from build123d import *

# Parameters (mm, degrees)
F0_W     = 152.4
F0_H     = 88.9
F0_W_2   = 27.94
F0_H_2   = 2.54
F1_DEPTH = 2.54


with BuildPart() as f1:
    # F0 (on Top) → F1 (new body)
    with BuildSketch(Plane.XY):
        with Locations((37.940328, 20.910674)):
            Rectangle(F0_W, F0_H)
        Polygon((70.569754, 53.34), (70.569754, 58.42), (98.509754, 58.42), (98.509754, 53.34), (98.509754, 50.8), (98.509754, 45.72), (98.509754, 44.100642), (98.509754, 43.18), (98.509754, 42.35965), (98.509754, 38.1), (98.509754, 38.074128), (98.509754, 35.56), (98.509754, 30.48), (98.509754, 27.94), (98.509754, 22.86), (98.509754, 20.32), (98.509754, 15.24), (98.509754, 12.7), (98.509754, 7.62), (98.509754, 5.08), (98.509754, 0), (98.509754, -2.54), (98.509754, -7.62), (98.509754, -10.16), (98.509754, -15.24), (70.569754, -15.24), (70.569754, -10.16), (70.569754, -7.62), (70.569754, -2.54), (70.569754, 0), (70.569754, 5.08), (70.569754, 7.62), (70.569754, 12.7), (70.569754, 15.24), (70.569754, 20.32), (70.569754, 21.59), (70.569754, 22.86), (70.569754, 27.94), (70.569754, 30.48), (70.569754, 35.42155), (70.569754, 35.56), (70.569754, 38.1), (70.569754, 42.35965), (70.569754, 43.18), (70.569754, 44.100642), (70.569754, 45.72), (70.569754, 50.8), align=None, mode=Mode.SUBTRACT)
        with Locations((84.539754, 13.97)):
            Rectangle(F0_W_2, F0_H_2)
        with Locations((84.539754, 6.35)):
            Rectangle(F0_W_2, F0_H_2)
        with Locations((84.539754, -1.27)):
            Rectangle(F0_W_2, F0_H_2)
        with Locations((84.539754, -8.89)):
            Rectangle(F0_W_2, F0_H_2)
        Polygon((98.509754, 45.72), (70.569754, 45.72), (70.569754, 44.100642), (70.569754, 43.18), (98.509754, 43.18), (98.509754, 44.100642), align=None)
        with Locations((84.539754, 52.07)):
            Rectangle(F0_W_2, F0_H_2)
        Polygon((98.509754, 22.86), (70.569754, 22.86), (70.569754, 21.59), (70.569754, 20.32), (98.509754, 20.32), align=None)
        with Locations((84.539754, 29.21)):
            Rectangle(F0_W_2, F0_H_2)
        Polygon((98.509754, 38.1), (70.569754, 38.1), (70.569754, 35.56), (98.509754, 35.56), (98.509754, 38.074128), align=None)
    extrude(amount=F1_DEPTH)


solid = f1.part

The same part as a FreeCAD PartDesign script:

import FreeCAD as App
import Part
import Sketcher

V = App.Vector
Q = App.Units.Quantity

doc = App.newDocument("Part")
params = doc.addObject("Spreadsheet::Sheet", "Params")
for row, (alias, value) in enumerate([
    ("sketch1_width", "6 in"),
    ("sketch1_width2", "1.1 in"),
    ("sketch1_height", "3.5 in"),
    ("sketch1_height2", "0.2 in"),
    ("pad1_length", "0.1 in"),
], start=1):
    params.set(f"A{row}", alias)
    params.set(f"B{row}", "=" + value)
    params.setAlias(f"B{row}", alias)

body = doc.addObject("PartDesign::Body", "Body")

# Sketch on XY plane
sketch1 = body.newObject("Sketcher::SketchObject", "Sketch")
sketch1.AttachmentSupport = (doc.getObject("XY_Plane"), [""])
sketch1.MapMode = "FlatFace"
sketch1.addGeometry(Part.LineSegment(V(-38, 65, 0), V(-38, -24, 0)), False)
sketch1.addGeometry(Part.LineSegment(V(-38, -24, 0), V(114, -24, 0)), False)
sketch1.addGeometry(Part.LineSegment(V(114, -24, 0), V(114, 65, 0)), False)
sketch1.addGeometry(Part.LineSegment(V(114, 65, 0), V(-38, 65, 0)), False)
sketch1.addGeometry(Part.LineSegment(V(71, -15, 0), V(71, -10, 0)), False)
sketch1.addGeometry(Part.LineSegment(V(71, -10, 0), V(99, -10, 0)), False)
sketch1.addGeometry(Part.LineSegment(V(99, -10, 0), V(99, -15, 0)), False)
sketch1.addGeometry(Part.LineSegment(V(99, -15, 0), V(71, -15, 0)), False)
sketch1.addGeometry(Part.LineSegment(V(71, -8, 0), V(71, -3, 0)), False)
sketch1.addGeometry(Part.LineSegment(V(71, -3, 0), V(99, -3, 0)), False)
sketch1.addGeometry(Part.LineSegment(V(99, -3, 0), V(99, -8, 0)), False)
sketch1.addGeometry(Part.LineSegment(V(99, -8, 0), V(71, -8, 0)), False)
sketch1.addGeometry(Part.LineSegment(V(71, 0, 0), V(71, 5, 0)), False)
sketch1.addGeometry(Part.LineSegment(V(71, 5, 0), V(99, 5, 0)), False)
sketch1.addGeometry(Part.LineSegment(V(99, 5, 0), V(99, 0, 0)), False)
sketch1.addGeometry(Part.LineSegment(V(99, 0, 0), V(71, 0, 0)), False)
sketch1.addGeometry(Part.LineSegment(V(71, 8, 0), V(71, 13, 0)), False)
sketch1.addGeometry(Part.LineSegment(V(71, 13, 0), V(99, 13, 0)), False)
sketch1.addGeometry(Part.LineSegment(V(99, 13, 0), V(99, 8, 0)), False)
sketch1.addGeometry(Part.LineSegment(V(99, 8, 0), V(71, 8, 0)), False)
sketch1.addGeometry(Part.LineSegment(V(71, 15, 0), V(71, 20, 0)), False)
sketch1.addGeometry(Part.LineSegment(V(71, 20, 0), V(99, 20, 0)), False)
sketch1.addGeometry(Part.LineSegment(V(99, 20, 0), V(99, 15, 0)), False)
sketch1.addGeometry(Part.LineSegment(V(99, 15, 0), V(71, 15, 0)), False)
sketch1.addGeometry(Part.LineSegment(V(71, 23, 0), V(71, 28, 0)), False)
sketch1.addGeometry(Part.LineSegment(V(71, 28, 0), V(99, 28, 0)), False)
sketch1.addGeometry(Part.LineSegment(V(99, 28, 0), V(99, 23, 0)), False)
sketch1.addGeometry(Part.LineSegment(V(99, 23, 0), V(71, 23, 0)), False)
sketch1.addGeometry(Part.LineSegment(V(71, 30, 0), V(71, 36, 0)), False)
sketch1.addGeometry(Part.LineSegment(V(71, 36, 0), V(99, 36, 0)), False)
sketch1.addGeometry(Part.LineSegment(V(99, 36, 0), V(99, 30, 0)), False)
sketch1.addGeometry(Part.LineSegment(V(99, 30, 0), V(71, 30, 0)), False)
sketch1.addGeometry(Part.LineSegment(V(71, 38, 0), V(71, 43, 0)), False)
sketch1.addGeometry(Part.LineSegment(V(71, 43, 0), V(99, 43, 0)), False)
sketch1.addGeometry(Part.LineSegment(V(99, 43, 0), V(99, 38, 0)), False)
sketch1.addGeometry(Part.LineSegment(V(99, 38, 0), V(71, 38, 0)), False)
sketch1.addGeometry(Part.LineSegment(V(71, 46, 0), V(71, 51, 0)), False)
sketch1.addGeometry(Part.LineSegment(V(71, 51, 0), V(99, 51, 0)), False)
sketch1.addGeometry(Part.LineSegment(V(99, 51, 0), V(99, 46, 0)), False)
sketch1.addGeometry(Part.LineSegment(V(99, 46, 0), V(71, 46, 0)), False)
sketch1.addGeometry(Part.LineSegment(V(71, 53, 0), V(71, 58, 0)), False)
sketch1.addGeometry(Part.LineSegment(V(71, 58, 0), V(99, 58, 0)), False)
sketch1.addGeometry(Part.LineSegment(V(99, 58, 0), V(99, 53, 0)), False)
sketch1.addGeometry(Part.LineSegment(V(99, 53, 0), V(71, 53, 0)), False)
sketch1.addConstraint(Sketcher.Constraint("Coincident", 0, 2, 1, 1))
sketch1.addConstraint(Sketcher.Constraint("Coincident", 1, 2, 2, 1))
sketch1.addConstraint(Sketcher.Constraint("Coincident", 2, 2, 3, 1))
sketch1.addConstraint(Sketcher.Constraint("Coincident", 3, 2, 0, 1))
sketch1.addConstraint(Sketcher.Constraint("Coincident", 4, 2, 5, 1))
sketch1.addConstraint(Sketcher.Constraint("Coincident", 5, 2, 6, 1))
sketch1.addConstraint(Sketcher.Constraint("Coincident", 6, 2, 7, 1))
sketch1.addConstraint(Sketcher.Constraint("Coincident", 7, 2, 4, 1))
sketch1.addConstraint(Sketcher.Constraint("Coincident", 8, 2, 9, 1))
sketch1.addConstraint(Sketcher.Constraint("Coincident", 9, 2, 10, 1))
sketch1.addConstraint(Sketcher.Constraint("Coincident", 10, 2, 11, 1))
sketch1.addConstraint(Sketcher.Constraint("Coincident", 11, 2, 8, 1))
sketch1.addConstraint(Sketcher.Constraint("Coincident", 12, 2, 13, 1))
sketch1.addConstraint(Sketcher.Constraint("Coincident", 13, 2, 14, 1))
sketch1.addConstraint(Sketcher.Constraint("Coincident", 14, 2, 15, 1))
sketch1.addConstraint(Sketcher.Constraint("Coincident", 15, 2, 12, 1))
sketch1.addConstraint(Sketcher.Constraint("Coincident", 16, 2, 17, 1))
sketch1.addConstraint(Sketcher.Constraint("Coincident", 17, 2, 18, 1))
sketch1.addConstraint(Sketcher.Constraint("Coincident", 18, 2, 19, 1))
sketch1.addConstraint(Sketcher.Constraint("Coincident", 19, 2, 16, 1))
sketch1.addConstraint(Sketcher.Constraint("Coincident", 20, 2, 21, 1))
sketch1.addConstraint(Sketcher.Constraint("Coincident", 21, 2, 22, 1))
sketch1.addConstraint(Sketcher.Constraint("Coincident", 22, 2, 23, 1))
sketch1.addConstraint(Sketcher.Constraint("Coincident", 23, 2, 20, 1))
sketch1.addConstraint(Sketcher.Constraint("Coincident", 24, 2, 25, 1))
sketch1.addConstraint(Sketcher.Constraint("Coincident", 25, 2, 26, 1))
sketch1.addConstraint(Sketcher.Constraint("Coincident", 26, 2, 27, 1))
sketch1.addConstraint(Sketcher.Constraint("Coincident", 27, 2, 24, 1))
sketch1.addConstraint(Sketcher.Constraint("Coincident", 28, 2, 29, 1))
sketch1.addConstraint(Sketcher.Constraint("Coincident", 29, 2, 30, 1))
sketch1.addConstraint(Sketcher.Constraint("Coincident", 30, 2, 31, 1))
sketch1.addConstraint(Sketcher.Constraint("Coincident", 31, 2, 28, 1))
sketch1.addConstraint(Sketcher.Constraint("Coincident", 32, 2, 33, 1))
sketch1.addConstraint(Sketcher.Constraint("Coincident", 33, 2, 34, 1))
sketch1.addConstraint(Sketcher.Constraint("Coincident", 34, 2, 35, 1))
sketch1.addConstraint(Sketcher.Constraint("Coincident", 35, 2, 32, 1))
sketch1.addConstraint(Sketcher.Constraint("Coincident", 36, 2, 37, 1))
sketch1.addConstraint(Sketcher.Constraint("Coincident", 37, 2, 38, 1))
sketch1.addConstraint(Sketcher.Constraint("Coincident", 38, 2, 39, 1))
sketch1.addConstraint(Sketcher.Constraint("Coincident", 39, 2, 36, 1))
sketch1.addConstraint(Sketcher.Constraint("Coincident", 40, 2, 41, 1))
sketch1.addConstraint(Sketcher.Constraint("Coincident", 41, 2, 42, 1))
sketch1.addConstraint(Sketcher.Constraint("Coincident", 42, 2, 43, 1))
sketch1.addConstraint(Sketcher.Constraint("Coincident", 43, 2, 40, 1))
sketch1.addConstraint(Sketcher.Constraint("Vertical", 0))
sketch1.addConstraint(Sketcher.Constraint("Horizontal", 1))
sketch1.addConstraint(Sketcher.Constraint("Vertical", 2))
sketch1.addConstraint(Sketcher.Constraint("Horizontal", 3))
sketch1.addConstraint(Sketcher.Constraint("Vertical", 4))
sketch1.addConstraint(Sketcher.Constraint("Horizontal", 5))
sketch1.addConstraint(Sketcher.Constraint("Vertical", 6))
sketch1.addConstraint(Sketcher.Constraint("Horizontal", 7))
sketch1.addConstraint(Sketcher.Constraint("Vertical", 8))
sketch1.addConstraint(Sketcher.Constraint("Horizontal", 9))
sketch1.addConstraint(Sketcher.Constraint("Vertical", 10))
sketch1.addConstraint(Sketcher.Constraint("Horizontal", 11))
sketch1.addConstraint(Sketcher.Constraint("Vertical", 12))
sketch1.addConstraint(Sketcher.Constraint("Horizontal", 13))
sketch1.addConstraint(Sketcher.Constraint("Vertical", 14))
sketch1.addConstraint(Sketcher.Constraint("Horizontal", 15))
sketch1.addConstraint(Sketcher.Constraint("Vertical", 16))
sketch1.addConstraint(Sketcher.Constraint("Horizontal", 17))
sketch1.addConstraint(Sketcher.Constraint("Vertical", 18))
sketch1.addConstraint(Sketcher.Constraint("Horizontal", 19))
sketch1.addConstraint(Sketcher.Constraint("Vertical", 20))
sketch1.addConstraint(Sketcher.Constraint("Horizontal", 21))
sketch1.addConstraint(Sketcher.Constraint("Vertical", 22))
sketch1.addConstraint(Sketcher.Constraint("Horizontal", 23))
sketch1.addConstraint(Sketcher.Constraint("Vertical", 24))
sketch1.addConstraint(Sketcher.Constraint("Horizontal", 25))
sketch1.addConstraint(Sketcher.Constraint("Vertical", 26))
sketch1.addConstraint(Sketcher.Constraint("Horizontal", 27))
sketch1.addConstraint(Sketcher.Constraint("Vertical", 28))
sketch1.addConstraint(Sketcher.Constraint("Horizontal", 29))
sketch1.addConstraint(Sketcher.Constraint("Vertical", 30))
sketch1.addConstraint(Sketcher.Constraint("Horizontal", 31))
sketch1.addConstraint(Sketcher.Constraint("Vertical", 32))
sketch1.addConstraint(Sketcher.Constraint("Horizontal", 33))
sketch1.addConstraint(Sketcher.Constraint("Vertical", 34))
sketch1.addConstraint(Sketcher.Constraint("Horizontal", 35))
sketch1.addConstraint(Sketcher.Constraint("Vertical", 36))
sketch1.addConstraint(Sketcher.Constraint("Horizontal", 37))
sketch1.addConstraint(Sketcher.Constraint("Vertical", 38))
sketch1.addConstraint(Sketcher.Constraint("Horizontal", 39))
sketch1.addConstraint(Sketcher.Constraint("Vertical", 40))
sketch1.addConstraint(Sketcher.Constraint("Horizontal", 41))
sketch1.addConstraint(Sketcher.Constraint("Vertical", 42))
sketch1.addConstraint(Sketcher.Constraint("Horizontal", 43))
sketch1.addConstraint(Sketcher.Constraint("Symmetric", 10, 2, 18, 2, -1))
sketch1.addConstraint(Sketcher.Constraint("Symmetric", 6, 2, 22, 2, -1))
sketch1.addConstraint(Sketcher.Constraint("PointOnObject", 14, 2, -1))
sketch1.addConstraint(Sketcher.Constraint("Vertical", 7, 2, 8, 2))
sketch1.addConstraint(Sketcher.Constraint("Vertical", 6, 2, 9, 2))
sketch1.addConstraint(Sketcher.Constraint("Vertical", 11, 2, 12, 2))
sketch1.addConstraint(Sketcher.Constraint("Vertical", 10, 2, 13, 2))
sketch1.addConstraint(Sketcher.Constraint("Vertical", 15, 2, 16, 2))
sketch1.addConstraint(Sketcher.Constraint("Vertical", 19, 2, 20, 2))
sketch1.addConstraint(Sketcher.Constraint("Vertical", 23, 2, 24, 2))
sketch1.addConstraint(Sketcher.Constraint("Vertical", 22, 2, 25, 2))
sketch1.addConstraint(Sketcher.Constraint("Vertical", 27, 2, 28, 2))
sketch1.addConstraint(Sketcher.Constraint("Vertical", 26, 2, 29, 2))
sketch1.addConstraint(Sketcher.Constraint("Vertical", 31, 2, 32, 2))
sketch1.addConstraint(Sketcher.Constraint("Vertical", 30, 2, 33, 2))
sketch1.addConstraint(Sketcher.Constraint("Vertical", 35, 2, 36, 2))
sketch1.addConstraint(Sketcher.Constraint("Vertical", 34, 2, 37, 2))
sketch1.addConstraint(Sketcher.Constraint("Vertical", 39, 2, 40, 2))
sketch1.addConstraint(Sketcher.Constraint("Vertical", 38, 2, 41, 2))
sketch1.addConstraint(Sketcher.Constraint("Equal", 6, 8))
sketch1.addConstraint(Sketcher.Constraint("Equal", 10, 12))
sketch1.addConstraint(Sketcher.Constraint("Equal", 14, 16))
sketch1.addConstraint(Sketcher.Constraint("Equal", 18, 20))
sketch1.addConstraint(Sketcher.Constraint("Equal", 22, 24))
sketch1.addConstraint(Sketcher.Constraint("Equal", 26, 28))
sketch1.addConstraint(Sketcher.Constraint("Equal", 30, 32))
sketch1.addConstraint(Sketcher.Constraint("Equal", 34, 36))
sketch1.addConstraint(Sketcher.Constraint("Equal", 38, 40))
sketch1.addConstraint(Sketcher.Constraint("DistanceX", 1, 1, 1, 2, Q("6 in")))
sketch1.addConstraint(Sketcher.Constraint("DistanceX", 5, 1, 5, 2, Q("1.1 in")))
sketch1.addConstraint(Sketcher.Constraint("DistanceY", 0, 2, 0, 1, Q("3.5 in")))
sketch1.addConstraint(Sketcher.Constraint("DistanceY", 4, 1, 4, 2, Q("0.2 in")))
sketch1.addConstraint(Sketcher.Constraint("DistanceY", -1, 1, 36, 2, Q("2 in")))
sketch1.addConstraint(Sketcher.Constraint("DistanceY", 4, 2, -1, 1, Q("0.4 in")))
sketch1.addConstraint(Sketcher.Constraint("DistanceY", 8, 2, -1, 1, Q("0.1 in")))
sketch1.addConstraint(Sketcher.Constraint("DistanceY", -1, 1, 24, 2, Q("1.1 in")))
sketch1.addConstraint(Sketcher.Constraint("DistanceY", -1, 1, 28, 2, Q("1.4 in")))
sketch1.addConstraint(Sketcher.Constraint("DistanceY", -1, 1, 32, 2, Q("1.7 in")))
sketch1.addConstraint(Sketcher.Constraint("DistanceY", -1, 1, 40, 2, Q("2.3 in")))
sketch1.addConstraint(Sketcher.Constraint("DistanceX", 0, 2, -1, 1, 38.259672))
sketch1.addConstraint(Sketcher.Constraint("DistanceY", 0, 2, -1, 1, 23.539326))
sketch1.addConstraint(Sketcher.Constraint("DistanceX", -1, 1, 4, 2, 70.569754))
sketch1.setExpression("Constraints[116]", "Params.sketch1_width")
sketch1.setExpression("Constraints[117]", "Params.sketch1_width2")
sketch1.setExpression("Constraints[118]", "Params.sketch1_height")
sketch1.setExpression("Constraints[119]", "Params.sketch1_height2")
pad1 = body.newObject("PartDesign::Pad", "Pad")
pad1.Profile = sketch1
pad1.setExpression("Length", "Params.pad1_length")

doc.recompute()
